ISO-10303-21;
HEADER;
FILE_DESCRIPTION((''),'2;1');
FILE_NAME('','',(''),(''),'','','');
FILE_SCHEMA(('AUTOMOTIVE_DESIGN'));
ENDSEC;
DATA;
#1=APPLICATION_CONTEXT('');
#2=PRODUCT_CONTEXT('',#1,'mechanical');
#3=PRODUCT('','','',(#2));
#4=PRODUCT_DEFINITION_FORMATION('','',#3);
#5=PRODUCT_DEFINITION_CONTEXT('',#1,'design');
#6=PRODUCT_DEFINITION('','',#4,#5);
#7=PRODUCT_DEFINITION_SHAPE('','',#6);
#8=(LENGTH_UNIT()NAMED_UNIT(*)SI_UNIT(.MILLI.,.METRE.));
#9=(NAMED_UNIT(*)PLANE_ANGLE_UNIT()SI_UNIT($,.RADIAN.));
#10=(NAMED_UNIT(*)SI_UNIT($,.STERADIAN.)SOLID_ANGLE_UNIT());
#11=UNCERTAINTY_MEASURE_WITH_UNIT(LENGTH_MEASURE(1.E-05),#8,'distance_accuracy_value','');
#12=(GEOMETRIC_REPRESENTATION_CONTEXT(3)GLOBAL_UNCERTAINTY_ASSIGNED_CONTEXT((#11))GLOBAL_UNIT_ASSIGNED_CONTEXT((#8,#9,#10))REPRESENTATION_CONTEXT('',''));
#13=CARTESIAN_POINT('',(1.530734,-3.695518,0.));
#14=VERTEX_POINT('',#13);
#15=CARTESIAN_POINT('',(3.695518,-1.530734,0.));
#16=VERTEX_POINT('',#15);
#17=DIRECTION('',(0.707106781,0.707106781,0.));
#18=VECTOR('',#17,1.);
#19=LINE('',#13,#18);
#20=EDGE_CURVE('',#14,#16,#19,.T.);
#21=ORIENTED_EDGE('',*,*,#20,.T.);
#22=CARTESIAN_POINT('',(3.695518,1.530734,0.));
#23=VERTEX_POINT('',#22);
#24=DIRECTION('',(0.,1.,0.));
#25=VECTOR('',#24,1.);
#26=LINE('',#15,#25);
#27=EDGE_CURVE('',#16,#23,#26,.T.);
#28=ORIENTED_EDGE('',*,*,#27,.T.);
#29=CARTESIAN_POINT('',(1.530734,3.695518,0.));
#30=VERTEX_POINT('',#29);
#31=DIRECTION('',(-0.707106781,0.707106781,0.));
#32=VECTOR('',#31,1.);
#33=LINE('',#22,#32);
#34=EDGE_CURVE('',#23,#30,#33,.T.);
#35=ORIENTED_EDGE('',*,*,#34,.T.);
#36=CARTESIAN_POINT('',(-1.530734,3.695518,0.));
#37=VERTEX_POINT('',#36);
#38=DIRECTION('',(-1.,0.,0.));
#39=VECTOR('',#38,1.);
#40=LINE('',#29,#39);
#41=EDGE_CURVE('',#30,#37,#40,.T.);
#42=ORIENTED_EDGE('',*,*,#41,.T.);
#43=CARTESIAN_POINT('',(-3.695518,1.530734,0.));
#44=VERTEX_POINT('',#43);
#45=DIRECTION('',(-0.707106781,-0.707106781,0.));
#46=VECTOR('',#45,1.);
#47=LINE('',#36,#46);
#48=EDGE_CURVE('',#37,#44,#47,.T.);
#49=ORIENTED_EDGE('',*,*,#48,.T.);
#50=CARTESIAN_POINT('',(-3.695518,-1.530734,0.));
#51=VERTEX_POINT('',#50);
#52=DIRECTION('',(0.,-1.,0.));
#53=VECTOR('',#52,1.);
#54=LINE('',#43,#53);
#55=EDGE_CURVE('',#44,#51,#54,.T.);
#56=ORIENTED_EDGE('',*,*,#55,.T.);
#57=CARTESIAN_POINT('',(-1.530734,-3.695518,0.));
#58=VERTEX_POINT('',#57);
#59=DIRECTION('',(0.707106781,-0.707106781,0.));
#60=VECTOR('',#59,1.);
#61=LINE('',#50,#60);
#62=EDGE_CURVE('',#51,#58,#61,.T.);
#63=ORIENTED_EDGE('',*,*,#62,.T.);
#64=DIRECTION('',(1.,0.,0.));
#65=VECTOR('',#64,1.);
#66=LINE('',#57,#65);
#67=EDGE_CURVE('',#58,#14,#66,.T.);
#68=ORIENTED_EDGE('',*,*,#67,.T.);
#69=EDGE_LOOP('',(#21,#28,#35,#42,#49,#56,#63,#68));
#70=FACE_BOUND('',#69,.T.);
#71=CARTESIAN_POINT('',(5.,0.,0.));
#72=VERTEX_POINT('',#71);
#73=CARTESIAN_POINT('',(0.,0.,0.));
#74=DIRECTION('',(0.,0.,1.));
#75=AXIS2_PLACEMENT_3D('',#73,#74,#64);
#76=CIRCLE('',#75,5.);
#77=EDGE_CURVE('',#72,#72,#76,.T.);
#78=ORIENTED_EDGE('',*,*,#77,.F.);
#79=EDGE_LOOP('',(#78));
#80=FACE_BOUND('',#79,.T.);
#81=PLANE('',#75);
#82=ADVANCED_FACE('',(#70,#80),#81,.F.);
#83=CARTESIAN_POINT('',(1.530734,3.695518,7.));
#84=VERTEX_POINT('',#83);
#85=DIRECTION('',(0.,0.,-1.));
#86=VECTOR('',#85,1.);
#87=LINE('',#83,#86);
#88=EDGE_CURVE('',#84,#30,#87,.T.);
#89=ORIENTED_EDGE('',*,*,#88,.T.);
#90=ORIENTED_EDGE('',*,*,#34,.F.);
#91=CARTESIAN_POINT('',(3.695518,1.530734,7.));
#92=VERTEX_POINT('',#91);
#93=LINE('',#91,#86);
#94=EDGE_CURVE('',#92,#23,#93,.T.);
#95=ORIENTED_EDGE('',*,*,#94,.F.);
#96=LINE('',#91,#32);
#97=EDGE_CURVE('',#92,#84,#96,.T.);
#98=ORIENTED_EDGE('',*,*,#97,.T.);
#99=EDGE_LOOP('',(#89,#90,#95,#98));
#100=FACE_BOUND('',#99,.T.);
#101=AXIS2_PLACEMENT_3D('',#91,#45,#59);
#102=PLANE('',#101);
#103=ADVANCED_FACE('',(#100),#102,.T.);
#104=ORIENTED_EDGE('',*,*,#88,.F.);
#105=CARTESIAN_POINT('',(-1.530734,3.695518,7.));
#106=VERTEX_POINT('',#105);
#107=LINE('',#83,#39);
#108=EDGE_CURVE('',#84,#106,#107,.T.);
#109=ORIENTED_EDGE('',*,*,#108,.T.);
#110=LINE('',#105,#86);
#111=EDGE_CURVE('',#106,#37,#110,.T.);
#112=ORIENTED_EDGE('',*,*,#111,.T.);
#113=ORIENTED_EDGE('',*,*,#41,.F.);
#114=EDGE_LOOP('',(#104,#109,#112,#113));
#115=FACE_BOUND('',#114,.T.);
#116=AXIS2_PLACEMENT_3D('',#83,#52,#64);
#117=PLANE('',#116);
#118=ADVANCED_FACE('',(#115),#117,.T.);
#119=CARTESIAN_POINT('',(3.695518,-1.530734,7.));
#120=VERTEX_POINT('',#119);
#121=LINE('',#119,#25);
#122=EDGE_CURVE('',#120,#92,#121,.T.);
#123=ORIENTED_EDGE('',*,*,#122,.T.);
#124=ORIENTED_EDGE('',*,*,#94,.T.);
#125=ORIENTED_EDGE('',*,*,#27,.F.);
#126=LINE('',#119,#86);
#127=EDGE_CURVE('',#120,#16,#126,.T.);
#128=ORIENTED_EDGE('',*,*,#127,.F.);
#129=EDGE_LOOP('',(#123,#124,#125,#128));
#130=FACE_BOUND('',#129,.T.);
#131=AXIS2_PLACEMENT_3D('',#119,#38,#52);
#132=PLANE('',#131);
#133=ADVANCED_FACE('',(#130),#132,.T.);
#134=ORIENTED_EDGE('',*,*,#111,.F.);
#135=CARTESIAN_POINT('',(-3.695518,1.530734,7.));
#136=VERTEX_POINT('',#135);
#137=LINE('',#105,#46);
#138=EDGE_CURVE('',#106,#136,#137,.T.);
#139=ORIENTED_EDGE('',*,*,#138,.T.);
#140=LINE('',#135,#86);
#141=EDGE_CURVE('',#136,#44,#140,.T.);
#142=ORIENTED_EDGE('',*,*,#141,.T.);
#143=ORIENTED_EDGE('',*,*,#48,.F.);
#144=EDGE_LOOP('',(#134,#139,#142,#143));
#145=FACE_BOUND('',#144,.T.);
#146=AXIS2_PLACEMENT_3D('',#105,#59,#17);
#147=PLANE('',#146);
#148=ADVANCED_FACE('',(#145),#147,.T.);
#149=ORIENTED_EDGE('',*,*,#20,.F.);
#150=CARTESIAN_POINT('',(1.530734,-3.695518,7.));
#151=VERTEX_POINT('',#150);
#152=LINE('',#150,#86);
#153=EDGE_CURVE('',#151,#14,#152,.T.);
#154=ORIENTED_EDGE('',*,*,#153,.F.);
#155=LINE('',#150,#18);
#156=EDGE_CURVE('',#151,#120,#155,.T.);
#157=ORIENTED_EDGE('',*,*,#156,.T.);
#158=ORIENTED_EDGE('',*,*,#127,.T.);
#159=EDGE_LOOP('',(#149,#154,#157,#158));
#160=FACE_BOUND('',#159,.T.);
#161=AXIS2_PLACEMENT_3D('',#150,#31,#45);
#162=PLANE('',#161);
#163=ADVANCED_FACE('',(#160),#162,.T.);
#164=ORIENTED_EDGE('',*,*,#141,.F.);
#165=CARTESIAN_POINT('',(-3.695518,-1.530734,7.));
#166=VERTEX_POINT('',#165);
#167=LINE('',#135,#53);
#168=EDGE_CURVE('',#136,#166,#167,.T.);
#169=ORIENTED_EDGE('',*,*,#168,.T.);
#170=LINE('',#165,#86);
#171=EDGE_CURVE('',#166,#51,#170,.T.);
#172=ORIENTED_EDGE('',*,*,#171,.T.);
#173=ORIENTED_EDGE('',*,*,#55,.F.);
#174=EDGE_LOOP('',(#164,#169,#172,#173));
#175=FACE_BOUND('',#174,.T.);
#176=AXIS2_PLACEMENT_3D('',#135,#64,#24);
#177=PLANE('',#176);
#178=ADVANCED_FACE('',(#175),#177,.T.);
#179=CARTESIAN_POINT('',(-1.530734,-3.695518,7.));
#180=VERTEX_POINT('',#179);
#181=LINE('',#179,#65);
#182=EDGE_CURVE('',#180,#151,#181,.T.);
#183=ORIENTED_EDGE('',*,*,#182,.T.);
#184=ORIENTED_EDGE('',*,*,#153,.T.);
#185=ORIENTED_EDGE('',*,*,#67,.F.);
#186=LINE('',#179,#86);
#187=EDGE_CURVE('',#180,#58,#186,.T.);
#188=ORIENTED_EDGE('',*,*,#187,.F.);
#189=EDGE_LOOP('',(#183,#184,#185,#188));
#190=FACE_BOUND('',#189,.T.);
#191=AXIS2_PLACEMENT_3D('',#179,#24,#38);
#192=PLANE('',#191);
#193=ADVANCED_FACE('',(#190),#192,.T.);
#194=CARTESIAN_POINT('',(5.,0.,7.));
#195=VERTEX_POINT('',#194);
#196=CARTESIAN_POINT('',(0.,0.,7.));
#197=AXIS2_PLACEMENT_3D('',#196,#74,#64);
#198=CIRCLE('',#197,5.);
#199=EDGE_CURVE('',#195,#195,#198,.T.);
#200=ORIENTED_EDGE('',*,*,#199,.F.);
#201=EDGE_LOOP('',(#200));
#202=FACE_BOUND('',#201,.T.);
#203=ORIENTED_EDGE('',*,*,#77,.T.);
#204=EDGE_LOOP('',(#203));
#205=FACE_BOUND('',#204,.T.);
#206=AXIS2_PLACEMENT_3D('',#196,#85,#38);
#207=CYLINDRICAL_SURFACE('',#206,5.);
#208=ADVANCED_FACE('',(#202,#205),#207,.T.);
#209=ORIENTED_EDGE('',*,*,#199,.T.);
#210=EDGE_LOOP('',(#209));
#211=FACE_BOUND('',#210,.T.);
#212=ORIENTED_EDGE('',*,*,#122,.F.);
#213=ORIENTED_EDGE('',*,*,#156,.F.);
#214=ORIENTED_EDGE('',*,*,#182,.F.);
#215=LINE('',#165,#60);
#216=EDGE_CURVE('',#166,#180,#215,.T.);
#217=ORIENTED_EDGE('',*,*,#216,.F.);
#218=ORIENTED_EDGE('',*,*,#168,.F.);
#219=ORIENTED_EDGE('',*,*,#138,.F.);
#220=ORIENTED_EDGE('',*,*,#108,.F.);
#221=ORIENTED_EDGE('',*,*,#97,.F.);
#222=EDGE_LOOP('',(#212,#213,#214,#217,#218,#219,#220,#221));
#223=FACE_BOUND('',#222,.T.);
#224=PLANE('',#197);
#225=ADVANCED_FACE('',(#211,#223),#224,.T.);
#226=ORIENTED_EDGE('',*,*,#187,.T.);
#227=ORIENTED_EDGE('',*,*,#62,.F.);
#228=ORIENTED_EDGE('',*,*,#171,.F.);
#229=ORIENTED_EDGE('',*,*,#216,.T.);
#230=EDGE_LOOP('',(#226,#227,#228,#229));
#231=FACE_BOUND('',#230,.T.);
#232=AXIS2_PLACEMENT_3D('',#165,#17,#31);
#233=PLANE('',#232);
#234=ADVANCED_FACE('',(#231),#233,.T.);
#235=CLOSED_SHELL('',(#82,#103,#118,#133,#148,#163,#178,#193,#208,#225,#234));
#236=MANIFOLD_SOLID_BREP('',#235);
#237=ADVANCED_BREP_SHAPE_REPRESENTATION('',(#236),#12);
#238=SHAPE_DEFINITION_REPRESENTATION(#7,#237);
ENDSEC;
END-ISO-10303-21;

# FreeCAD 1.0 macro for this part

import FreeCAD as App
import Part
import Sketcher
Q = App.Units.Quantity

doc = App.newDocument("Part")
params = doc.addObject("Spreadsheet::Sheet", "Params")
for row, (alias, value) in enumerate([
    ("sketch1_diameter", "10 mm"),
    ("pad1_length", "7 mm"),
], start=1):
    params.set(f"A{row}", alias)
    params.set(f"B{row}", "=" + value)
    params.setAlias(f"B{row}", alias)

body = doc.addObject("PartDesign::Body", "Body")

# Sketch on XY plane
sketch1 = doc.addObject("Sketcher::SketchObject", "Sketch")
body.addObject(sketch1)
sketch1.AttachmentSupport = (doc.XY_Plane, [""])
sketch1.MapMode = "FlatFace"
sketch1.addGeometry(Part.Circle(App.Vector(0, 0, 0), App.Vector(0, 0, 1), 5), False)
sketch1.addGeometry(Part.LineSegment(App.Vector(-1.5, 3.7, 0), App.Vector(1.5, 3.7, 0)), False)
sketch1.addGeometry(Part.LineSegment(App.Vector(1.5, 3.7, 0), App.Vector(3.7, 1.5, 0)), False)
sketch1.addGeometry(Part.LineSegment(App.Vector(3.7, 1.5, 0), App.Vector(3.7, -1.5, 0)), False)
sketch1.addGeometry(Part.LineSegment(App.Vector(3.7, -1.5, 0), App.Vector(1.5, -3.7, 0)), False)
sketch1.addGeometry(Part.LineSegment(App.Vector(1.5, -3.7, 0), App.Vector(-1.5, -3.7, 0)), False)
sketch1.addGeometry(Part.LineSegment(App.Vector(-1.5, -3.7, 0), App.Vector(-3.7, -1.5, 0)), False)
sketch1.addGeometry(Part.LineSegment(App.Vector(-3.7, -1.5, 0), App.Vector(-3.7, 1.5, 0)), False)
sketch1.addGeometry(Part.LineSegment(App.Vector(-3.7, 1.5, 0), App.Vector(-1.5, 3.7, 0)), False)
sketch1.addConstraint(Sketcher.Constraint("Coincident", 1, 2, 2, 1))
sketch1.addConstraint(Sketcher.Constraint("Coincident", 2, 2, 3, 1))
sketch1.addConstraint(Sketcher.Constraint("Coincident", 3, 2, 4, 1))
sketch1.addConstraint(Sketcher.Constraint("Coincident", 4, 2, 5, 1))
sketch1.addConstraint(Sketcher.Constraint("Coincident", 5, 2, 6, 1))
sketch1.addConstraint(Sketcher.Constraint("Coincident", 6, 2, 7, 1))
sketch1.addConstraint(Sketcher.Constraint("Coincident", 7, 2, 8, 1))
sketch1.addConstraint(Sketcher.Constraint("Coincident", 8, 2, 1, 1))
sketch1.addConstraint(Sketcher.Constraint("Horizontal", 1))
sketch1.addConstraint(Sketcher.Constraint("Vertical", 3))
sketch1.addConstraint(Sketcher.Constraint("Horizontal", 5))
sketch1.addConstraint(Sketcher.Constraint("Vertical", 7))
sketch1.addConstraint(Sketcher.Constraint("Coincident", 0, 3, -1, 1))
sketch1.addConstraint(Sketcher.Constraint("Symmetric", 1, 2, 5, 2, -1, 1))
sketch1.addConstraint(Sketcher.Constraint("Symmetric", 2, 2, 6, 2, -1, 1))
sketch1.addConstraint(Sketcher.Constraint("Perpendicular", 2, 4))
sketch1.addConstraint(Sketcher.Constraint("Perpendicular", 6, 8))
sketch1.addConstraint(Sketcher.Constraint("Horizontal", 3, 2, 6, 2))
sketch1.addConstraint(Sketcher.Constraint("Horizontal", 2, 2, 7, 2))
sketch1.addConstraint(Sketcher.Constraint("Vertical", 1, 2, 4, 2))
sketch1.addConstraint(Sketcher.Constraint("Equal", 5, 3))
sketch1.addConstraint(Sketcher.Constraint("Diameter", 0, Q("10 mm")))
sketch1.addConstraint(Sketcher.Constraint("DistanceX", 1, 1, 1, 2, Q("3.061467 mm")))
sketch1.addConstraint(Sketcher.Constraint("DistanceY", -1, 1, 1, 2, Q("3.695518 mm")))
sketch1.setExpression("Constraints[21]", "Params.sketch1_diameter")
pad1 = doc.addObject("PartDesign::Pad", "Pad")
body.addObject(pad1)
pad1.Profile = sketch1
pad1.setExpression("Length", "Params.pad1_length")

doc.recompute()
